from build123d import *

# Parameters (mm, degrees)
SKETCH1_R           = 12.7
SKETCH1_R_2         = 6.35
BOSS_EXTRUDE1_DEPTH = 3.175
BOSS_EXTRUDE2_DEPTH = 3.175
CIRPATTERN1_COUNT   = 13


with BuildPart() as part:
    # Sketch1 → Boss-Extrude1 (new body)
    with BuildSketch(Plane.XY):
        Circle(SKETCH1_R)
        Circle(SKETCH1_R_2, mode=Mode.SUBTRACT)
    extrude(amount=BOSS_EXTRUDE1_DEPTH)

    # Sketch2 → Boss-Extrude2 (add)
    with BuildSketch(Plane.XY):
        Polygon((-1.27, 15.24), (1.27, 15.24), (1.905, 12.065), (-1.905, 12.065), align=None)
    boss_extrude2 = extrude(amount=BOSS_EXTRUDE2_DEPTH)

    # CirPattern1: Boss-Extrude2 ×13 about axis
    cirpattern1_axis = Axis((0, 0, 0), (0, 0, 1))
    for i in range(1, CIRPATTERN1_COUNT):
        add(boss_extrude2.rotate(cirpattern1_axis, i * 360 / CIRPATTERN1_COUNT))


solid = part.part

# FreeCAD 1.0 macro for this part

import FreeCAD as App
import Part
import Sketcher
Q = App.Units.Quantity

doc = App.newDocument("Part")
body = doc.addObject("PartDesign::Body", "Body")

sketch1 = body.newObject("Sketcher::SketchObject", "Sketch")
sketch1.AttachmentSupport = (doc.getObject("XY_Plane"), [""])
sketch1.MapMode = "FlatFace"
sketch1.addGeometry([
    Part.Circle(App.Vector(0, 0, 0), App.Vector(0, 0, 1), 13),
    Part.Circle(App.Vector(0, 0, 0), App.Vector(0, 0, 1), 6),
], False)
sketch1.addConstraint([
    Sketcher.Constraint("Coincident", 0, 3, -1, 1),
    Sketcher.Constraint("Coincident", 1, 3, -1, 1),
    Sketcher.Constraint("Diameter", 0, Q("1 in")),
    Sketcher.Constraint("Diameter", 1, Q("0.5 in")),
])
pad1 = body.newObject("PartDesign::Pad", "Pad")
pad1.Profile = sketch1
pad1.Length = Q("0.125 in")

sketch2 = body.newObject("Sketcher::SketchObject", "Sketch001")
sketch2.AttachmentSupport = (doc.getObject("XY_Plane"), [""])
sketch2.MapMode = "FlatFace"
sketch2.addGeometry([
    Part.LineSegment(App.Vector(1.3, 15.2, 0), App.Vector(-1.3, 15.2, 0)),
    Part.LineSegment(App.Vector(-1.3, 15.2, 0), App.Vector(-1.9, 12.1, 0)),
    Part.LineSegment(App.Vector(-1.9, 12.1, 0), App.Vector(1.9, 12.1, 0)),
    Part.LineSegment(App.Vector(1.9, 12.1, 0), App.Vector(1.3, 15.2, 0)),
], False)
sketch2.addConstraint([
    Sketcher.Constraint("Coincident", 0, 2, 1, 1),
    Sketcher.Constraint("Coincident", 1, 2, 2, 1),
    Sketcher.Constraint("Coincident", 2, 2, 3, 1),
    Sketcher.Constraint("Coincident", 3, 2, 0, 1),
    Sketcher.Constraint("Horizontal", 0),
    Sketcher.Constraint("Horizontal", 2),
    Sketcher.Constraint("Equal", 1, 3),
    Sketcher.Constraint("DistanceX", 0, 2, 0, 1, Q("0.1 in")),
    Sketcher.Constraint("DistanceX", 2, 1, 2, 2, Q("0.15 in")),
    Sketcher.Constraint("DistanceY", -1, 1, 0, 2, Q("0.6 in")),
    Sketcher.Constraint("DistanceX", 0, 2, -1, 1, Q("0.05 in")),
    Sketcher.Constraint("DistanceY", -1, 1, 1, 2, Q("0.475 in")),
])
pad2 = body.newObject("PartDesign::Pad", "Pad001")
pad2.Profile = sketch2
pad2.Length = Q("0.125 in")
doc.recompute()

polarpattern = body.newObject("PartDesign::PolarPattern", "PolarPattern")
polarpattern.Originals = [pad2]
polarpattern.Axis = (doc.getObject("Z_Axis"), [""])
polarpattern.Angle = 360
polarpattern.Occurrences = 13
body.Tip = polarpattern

doc.recompute()
